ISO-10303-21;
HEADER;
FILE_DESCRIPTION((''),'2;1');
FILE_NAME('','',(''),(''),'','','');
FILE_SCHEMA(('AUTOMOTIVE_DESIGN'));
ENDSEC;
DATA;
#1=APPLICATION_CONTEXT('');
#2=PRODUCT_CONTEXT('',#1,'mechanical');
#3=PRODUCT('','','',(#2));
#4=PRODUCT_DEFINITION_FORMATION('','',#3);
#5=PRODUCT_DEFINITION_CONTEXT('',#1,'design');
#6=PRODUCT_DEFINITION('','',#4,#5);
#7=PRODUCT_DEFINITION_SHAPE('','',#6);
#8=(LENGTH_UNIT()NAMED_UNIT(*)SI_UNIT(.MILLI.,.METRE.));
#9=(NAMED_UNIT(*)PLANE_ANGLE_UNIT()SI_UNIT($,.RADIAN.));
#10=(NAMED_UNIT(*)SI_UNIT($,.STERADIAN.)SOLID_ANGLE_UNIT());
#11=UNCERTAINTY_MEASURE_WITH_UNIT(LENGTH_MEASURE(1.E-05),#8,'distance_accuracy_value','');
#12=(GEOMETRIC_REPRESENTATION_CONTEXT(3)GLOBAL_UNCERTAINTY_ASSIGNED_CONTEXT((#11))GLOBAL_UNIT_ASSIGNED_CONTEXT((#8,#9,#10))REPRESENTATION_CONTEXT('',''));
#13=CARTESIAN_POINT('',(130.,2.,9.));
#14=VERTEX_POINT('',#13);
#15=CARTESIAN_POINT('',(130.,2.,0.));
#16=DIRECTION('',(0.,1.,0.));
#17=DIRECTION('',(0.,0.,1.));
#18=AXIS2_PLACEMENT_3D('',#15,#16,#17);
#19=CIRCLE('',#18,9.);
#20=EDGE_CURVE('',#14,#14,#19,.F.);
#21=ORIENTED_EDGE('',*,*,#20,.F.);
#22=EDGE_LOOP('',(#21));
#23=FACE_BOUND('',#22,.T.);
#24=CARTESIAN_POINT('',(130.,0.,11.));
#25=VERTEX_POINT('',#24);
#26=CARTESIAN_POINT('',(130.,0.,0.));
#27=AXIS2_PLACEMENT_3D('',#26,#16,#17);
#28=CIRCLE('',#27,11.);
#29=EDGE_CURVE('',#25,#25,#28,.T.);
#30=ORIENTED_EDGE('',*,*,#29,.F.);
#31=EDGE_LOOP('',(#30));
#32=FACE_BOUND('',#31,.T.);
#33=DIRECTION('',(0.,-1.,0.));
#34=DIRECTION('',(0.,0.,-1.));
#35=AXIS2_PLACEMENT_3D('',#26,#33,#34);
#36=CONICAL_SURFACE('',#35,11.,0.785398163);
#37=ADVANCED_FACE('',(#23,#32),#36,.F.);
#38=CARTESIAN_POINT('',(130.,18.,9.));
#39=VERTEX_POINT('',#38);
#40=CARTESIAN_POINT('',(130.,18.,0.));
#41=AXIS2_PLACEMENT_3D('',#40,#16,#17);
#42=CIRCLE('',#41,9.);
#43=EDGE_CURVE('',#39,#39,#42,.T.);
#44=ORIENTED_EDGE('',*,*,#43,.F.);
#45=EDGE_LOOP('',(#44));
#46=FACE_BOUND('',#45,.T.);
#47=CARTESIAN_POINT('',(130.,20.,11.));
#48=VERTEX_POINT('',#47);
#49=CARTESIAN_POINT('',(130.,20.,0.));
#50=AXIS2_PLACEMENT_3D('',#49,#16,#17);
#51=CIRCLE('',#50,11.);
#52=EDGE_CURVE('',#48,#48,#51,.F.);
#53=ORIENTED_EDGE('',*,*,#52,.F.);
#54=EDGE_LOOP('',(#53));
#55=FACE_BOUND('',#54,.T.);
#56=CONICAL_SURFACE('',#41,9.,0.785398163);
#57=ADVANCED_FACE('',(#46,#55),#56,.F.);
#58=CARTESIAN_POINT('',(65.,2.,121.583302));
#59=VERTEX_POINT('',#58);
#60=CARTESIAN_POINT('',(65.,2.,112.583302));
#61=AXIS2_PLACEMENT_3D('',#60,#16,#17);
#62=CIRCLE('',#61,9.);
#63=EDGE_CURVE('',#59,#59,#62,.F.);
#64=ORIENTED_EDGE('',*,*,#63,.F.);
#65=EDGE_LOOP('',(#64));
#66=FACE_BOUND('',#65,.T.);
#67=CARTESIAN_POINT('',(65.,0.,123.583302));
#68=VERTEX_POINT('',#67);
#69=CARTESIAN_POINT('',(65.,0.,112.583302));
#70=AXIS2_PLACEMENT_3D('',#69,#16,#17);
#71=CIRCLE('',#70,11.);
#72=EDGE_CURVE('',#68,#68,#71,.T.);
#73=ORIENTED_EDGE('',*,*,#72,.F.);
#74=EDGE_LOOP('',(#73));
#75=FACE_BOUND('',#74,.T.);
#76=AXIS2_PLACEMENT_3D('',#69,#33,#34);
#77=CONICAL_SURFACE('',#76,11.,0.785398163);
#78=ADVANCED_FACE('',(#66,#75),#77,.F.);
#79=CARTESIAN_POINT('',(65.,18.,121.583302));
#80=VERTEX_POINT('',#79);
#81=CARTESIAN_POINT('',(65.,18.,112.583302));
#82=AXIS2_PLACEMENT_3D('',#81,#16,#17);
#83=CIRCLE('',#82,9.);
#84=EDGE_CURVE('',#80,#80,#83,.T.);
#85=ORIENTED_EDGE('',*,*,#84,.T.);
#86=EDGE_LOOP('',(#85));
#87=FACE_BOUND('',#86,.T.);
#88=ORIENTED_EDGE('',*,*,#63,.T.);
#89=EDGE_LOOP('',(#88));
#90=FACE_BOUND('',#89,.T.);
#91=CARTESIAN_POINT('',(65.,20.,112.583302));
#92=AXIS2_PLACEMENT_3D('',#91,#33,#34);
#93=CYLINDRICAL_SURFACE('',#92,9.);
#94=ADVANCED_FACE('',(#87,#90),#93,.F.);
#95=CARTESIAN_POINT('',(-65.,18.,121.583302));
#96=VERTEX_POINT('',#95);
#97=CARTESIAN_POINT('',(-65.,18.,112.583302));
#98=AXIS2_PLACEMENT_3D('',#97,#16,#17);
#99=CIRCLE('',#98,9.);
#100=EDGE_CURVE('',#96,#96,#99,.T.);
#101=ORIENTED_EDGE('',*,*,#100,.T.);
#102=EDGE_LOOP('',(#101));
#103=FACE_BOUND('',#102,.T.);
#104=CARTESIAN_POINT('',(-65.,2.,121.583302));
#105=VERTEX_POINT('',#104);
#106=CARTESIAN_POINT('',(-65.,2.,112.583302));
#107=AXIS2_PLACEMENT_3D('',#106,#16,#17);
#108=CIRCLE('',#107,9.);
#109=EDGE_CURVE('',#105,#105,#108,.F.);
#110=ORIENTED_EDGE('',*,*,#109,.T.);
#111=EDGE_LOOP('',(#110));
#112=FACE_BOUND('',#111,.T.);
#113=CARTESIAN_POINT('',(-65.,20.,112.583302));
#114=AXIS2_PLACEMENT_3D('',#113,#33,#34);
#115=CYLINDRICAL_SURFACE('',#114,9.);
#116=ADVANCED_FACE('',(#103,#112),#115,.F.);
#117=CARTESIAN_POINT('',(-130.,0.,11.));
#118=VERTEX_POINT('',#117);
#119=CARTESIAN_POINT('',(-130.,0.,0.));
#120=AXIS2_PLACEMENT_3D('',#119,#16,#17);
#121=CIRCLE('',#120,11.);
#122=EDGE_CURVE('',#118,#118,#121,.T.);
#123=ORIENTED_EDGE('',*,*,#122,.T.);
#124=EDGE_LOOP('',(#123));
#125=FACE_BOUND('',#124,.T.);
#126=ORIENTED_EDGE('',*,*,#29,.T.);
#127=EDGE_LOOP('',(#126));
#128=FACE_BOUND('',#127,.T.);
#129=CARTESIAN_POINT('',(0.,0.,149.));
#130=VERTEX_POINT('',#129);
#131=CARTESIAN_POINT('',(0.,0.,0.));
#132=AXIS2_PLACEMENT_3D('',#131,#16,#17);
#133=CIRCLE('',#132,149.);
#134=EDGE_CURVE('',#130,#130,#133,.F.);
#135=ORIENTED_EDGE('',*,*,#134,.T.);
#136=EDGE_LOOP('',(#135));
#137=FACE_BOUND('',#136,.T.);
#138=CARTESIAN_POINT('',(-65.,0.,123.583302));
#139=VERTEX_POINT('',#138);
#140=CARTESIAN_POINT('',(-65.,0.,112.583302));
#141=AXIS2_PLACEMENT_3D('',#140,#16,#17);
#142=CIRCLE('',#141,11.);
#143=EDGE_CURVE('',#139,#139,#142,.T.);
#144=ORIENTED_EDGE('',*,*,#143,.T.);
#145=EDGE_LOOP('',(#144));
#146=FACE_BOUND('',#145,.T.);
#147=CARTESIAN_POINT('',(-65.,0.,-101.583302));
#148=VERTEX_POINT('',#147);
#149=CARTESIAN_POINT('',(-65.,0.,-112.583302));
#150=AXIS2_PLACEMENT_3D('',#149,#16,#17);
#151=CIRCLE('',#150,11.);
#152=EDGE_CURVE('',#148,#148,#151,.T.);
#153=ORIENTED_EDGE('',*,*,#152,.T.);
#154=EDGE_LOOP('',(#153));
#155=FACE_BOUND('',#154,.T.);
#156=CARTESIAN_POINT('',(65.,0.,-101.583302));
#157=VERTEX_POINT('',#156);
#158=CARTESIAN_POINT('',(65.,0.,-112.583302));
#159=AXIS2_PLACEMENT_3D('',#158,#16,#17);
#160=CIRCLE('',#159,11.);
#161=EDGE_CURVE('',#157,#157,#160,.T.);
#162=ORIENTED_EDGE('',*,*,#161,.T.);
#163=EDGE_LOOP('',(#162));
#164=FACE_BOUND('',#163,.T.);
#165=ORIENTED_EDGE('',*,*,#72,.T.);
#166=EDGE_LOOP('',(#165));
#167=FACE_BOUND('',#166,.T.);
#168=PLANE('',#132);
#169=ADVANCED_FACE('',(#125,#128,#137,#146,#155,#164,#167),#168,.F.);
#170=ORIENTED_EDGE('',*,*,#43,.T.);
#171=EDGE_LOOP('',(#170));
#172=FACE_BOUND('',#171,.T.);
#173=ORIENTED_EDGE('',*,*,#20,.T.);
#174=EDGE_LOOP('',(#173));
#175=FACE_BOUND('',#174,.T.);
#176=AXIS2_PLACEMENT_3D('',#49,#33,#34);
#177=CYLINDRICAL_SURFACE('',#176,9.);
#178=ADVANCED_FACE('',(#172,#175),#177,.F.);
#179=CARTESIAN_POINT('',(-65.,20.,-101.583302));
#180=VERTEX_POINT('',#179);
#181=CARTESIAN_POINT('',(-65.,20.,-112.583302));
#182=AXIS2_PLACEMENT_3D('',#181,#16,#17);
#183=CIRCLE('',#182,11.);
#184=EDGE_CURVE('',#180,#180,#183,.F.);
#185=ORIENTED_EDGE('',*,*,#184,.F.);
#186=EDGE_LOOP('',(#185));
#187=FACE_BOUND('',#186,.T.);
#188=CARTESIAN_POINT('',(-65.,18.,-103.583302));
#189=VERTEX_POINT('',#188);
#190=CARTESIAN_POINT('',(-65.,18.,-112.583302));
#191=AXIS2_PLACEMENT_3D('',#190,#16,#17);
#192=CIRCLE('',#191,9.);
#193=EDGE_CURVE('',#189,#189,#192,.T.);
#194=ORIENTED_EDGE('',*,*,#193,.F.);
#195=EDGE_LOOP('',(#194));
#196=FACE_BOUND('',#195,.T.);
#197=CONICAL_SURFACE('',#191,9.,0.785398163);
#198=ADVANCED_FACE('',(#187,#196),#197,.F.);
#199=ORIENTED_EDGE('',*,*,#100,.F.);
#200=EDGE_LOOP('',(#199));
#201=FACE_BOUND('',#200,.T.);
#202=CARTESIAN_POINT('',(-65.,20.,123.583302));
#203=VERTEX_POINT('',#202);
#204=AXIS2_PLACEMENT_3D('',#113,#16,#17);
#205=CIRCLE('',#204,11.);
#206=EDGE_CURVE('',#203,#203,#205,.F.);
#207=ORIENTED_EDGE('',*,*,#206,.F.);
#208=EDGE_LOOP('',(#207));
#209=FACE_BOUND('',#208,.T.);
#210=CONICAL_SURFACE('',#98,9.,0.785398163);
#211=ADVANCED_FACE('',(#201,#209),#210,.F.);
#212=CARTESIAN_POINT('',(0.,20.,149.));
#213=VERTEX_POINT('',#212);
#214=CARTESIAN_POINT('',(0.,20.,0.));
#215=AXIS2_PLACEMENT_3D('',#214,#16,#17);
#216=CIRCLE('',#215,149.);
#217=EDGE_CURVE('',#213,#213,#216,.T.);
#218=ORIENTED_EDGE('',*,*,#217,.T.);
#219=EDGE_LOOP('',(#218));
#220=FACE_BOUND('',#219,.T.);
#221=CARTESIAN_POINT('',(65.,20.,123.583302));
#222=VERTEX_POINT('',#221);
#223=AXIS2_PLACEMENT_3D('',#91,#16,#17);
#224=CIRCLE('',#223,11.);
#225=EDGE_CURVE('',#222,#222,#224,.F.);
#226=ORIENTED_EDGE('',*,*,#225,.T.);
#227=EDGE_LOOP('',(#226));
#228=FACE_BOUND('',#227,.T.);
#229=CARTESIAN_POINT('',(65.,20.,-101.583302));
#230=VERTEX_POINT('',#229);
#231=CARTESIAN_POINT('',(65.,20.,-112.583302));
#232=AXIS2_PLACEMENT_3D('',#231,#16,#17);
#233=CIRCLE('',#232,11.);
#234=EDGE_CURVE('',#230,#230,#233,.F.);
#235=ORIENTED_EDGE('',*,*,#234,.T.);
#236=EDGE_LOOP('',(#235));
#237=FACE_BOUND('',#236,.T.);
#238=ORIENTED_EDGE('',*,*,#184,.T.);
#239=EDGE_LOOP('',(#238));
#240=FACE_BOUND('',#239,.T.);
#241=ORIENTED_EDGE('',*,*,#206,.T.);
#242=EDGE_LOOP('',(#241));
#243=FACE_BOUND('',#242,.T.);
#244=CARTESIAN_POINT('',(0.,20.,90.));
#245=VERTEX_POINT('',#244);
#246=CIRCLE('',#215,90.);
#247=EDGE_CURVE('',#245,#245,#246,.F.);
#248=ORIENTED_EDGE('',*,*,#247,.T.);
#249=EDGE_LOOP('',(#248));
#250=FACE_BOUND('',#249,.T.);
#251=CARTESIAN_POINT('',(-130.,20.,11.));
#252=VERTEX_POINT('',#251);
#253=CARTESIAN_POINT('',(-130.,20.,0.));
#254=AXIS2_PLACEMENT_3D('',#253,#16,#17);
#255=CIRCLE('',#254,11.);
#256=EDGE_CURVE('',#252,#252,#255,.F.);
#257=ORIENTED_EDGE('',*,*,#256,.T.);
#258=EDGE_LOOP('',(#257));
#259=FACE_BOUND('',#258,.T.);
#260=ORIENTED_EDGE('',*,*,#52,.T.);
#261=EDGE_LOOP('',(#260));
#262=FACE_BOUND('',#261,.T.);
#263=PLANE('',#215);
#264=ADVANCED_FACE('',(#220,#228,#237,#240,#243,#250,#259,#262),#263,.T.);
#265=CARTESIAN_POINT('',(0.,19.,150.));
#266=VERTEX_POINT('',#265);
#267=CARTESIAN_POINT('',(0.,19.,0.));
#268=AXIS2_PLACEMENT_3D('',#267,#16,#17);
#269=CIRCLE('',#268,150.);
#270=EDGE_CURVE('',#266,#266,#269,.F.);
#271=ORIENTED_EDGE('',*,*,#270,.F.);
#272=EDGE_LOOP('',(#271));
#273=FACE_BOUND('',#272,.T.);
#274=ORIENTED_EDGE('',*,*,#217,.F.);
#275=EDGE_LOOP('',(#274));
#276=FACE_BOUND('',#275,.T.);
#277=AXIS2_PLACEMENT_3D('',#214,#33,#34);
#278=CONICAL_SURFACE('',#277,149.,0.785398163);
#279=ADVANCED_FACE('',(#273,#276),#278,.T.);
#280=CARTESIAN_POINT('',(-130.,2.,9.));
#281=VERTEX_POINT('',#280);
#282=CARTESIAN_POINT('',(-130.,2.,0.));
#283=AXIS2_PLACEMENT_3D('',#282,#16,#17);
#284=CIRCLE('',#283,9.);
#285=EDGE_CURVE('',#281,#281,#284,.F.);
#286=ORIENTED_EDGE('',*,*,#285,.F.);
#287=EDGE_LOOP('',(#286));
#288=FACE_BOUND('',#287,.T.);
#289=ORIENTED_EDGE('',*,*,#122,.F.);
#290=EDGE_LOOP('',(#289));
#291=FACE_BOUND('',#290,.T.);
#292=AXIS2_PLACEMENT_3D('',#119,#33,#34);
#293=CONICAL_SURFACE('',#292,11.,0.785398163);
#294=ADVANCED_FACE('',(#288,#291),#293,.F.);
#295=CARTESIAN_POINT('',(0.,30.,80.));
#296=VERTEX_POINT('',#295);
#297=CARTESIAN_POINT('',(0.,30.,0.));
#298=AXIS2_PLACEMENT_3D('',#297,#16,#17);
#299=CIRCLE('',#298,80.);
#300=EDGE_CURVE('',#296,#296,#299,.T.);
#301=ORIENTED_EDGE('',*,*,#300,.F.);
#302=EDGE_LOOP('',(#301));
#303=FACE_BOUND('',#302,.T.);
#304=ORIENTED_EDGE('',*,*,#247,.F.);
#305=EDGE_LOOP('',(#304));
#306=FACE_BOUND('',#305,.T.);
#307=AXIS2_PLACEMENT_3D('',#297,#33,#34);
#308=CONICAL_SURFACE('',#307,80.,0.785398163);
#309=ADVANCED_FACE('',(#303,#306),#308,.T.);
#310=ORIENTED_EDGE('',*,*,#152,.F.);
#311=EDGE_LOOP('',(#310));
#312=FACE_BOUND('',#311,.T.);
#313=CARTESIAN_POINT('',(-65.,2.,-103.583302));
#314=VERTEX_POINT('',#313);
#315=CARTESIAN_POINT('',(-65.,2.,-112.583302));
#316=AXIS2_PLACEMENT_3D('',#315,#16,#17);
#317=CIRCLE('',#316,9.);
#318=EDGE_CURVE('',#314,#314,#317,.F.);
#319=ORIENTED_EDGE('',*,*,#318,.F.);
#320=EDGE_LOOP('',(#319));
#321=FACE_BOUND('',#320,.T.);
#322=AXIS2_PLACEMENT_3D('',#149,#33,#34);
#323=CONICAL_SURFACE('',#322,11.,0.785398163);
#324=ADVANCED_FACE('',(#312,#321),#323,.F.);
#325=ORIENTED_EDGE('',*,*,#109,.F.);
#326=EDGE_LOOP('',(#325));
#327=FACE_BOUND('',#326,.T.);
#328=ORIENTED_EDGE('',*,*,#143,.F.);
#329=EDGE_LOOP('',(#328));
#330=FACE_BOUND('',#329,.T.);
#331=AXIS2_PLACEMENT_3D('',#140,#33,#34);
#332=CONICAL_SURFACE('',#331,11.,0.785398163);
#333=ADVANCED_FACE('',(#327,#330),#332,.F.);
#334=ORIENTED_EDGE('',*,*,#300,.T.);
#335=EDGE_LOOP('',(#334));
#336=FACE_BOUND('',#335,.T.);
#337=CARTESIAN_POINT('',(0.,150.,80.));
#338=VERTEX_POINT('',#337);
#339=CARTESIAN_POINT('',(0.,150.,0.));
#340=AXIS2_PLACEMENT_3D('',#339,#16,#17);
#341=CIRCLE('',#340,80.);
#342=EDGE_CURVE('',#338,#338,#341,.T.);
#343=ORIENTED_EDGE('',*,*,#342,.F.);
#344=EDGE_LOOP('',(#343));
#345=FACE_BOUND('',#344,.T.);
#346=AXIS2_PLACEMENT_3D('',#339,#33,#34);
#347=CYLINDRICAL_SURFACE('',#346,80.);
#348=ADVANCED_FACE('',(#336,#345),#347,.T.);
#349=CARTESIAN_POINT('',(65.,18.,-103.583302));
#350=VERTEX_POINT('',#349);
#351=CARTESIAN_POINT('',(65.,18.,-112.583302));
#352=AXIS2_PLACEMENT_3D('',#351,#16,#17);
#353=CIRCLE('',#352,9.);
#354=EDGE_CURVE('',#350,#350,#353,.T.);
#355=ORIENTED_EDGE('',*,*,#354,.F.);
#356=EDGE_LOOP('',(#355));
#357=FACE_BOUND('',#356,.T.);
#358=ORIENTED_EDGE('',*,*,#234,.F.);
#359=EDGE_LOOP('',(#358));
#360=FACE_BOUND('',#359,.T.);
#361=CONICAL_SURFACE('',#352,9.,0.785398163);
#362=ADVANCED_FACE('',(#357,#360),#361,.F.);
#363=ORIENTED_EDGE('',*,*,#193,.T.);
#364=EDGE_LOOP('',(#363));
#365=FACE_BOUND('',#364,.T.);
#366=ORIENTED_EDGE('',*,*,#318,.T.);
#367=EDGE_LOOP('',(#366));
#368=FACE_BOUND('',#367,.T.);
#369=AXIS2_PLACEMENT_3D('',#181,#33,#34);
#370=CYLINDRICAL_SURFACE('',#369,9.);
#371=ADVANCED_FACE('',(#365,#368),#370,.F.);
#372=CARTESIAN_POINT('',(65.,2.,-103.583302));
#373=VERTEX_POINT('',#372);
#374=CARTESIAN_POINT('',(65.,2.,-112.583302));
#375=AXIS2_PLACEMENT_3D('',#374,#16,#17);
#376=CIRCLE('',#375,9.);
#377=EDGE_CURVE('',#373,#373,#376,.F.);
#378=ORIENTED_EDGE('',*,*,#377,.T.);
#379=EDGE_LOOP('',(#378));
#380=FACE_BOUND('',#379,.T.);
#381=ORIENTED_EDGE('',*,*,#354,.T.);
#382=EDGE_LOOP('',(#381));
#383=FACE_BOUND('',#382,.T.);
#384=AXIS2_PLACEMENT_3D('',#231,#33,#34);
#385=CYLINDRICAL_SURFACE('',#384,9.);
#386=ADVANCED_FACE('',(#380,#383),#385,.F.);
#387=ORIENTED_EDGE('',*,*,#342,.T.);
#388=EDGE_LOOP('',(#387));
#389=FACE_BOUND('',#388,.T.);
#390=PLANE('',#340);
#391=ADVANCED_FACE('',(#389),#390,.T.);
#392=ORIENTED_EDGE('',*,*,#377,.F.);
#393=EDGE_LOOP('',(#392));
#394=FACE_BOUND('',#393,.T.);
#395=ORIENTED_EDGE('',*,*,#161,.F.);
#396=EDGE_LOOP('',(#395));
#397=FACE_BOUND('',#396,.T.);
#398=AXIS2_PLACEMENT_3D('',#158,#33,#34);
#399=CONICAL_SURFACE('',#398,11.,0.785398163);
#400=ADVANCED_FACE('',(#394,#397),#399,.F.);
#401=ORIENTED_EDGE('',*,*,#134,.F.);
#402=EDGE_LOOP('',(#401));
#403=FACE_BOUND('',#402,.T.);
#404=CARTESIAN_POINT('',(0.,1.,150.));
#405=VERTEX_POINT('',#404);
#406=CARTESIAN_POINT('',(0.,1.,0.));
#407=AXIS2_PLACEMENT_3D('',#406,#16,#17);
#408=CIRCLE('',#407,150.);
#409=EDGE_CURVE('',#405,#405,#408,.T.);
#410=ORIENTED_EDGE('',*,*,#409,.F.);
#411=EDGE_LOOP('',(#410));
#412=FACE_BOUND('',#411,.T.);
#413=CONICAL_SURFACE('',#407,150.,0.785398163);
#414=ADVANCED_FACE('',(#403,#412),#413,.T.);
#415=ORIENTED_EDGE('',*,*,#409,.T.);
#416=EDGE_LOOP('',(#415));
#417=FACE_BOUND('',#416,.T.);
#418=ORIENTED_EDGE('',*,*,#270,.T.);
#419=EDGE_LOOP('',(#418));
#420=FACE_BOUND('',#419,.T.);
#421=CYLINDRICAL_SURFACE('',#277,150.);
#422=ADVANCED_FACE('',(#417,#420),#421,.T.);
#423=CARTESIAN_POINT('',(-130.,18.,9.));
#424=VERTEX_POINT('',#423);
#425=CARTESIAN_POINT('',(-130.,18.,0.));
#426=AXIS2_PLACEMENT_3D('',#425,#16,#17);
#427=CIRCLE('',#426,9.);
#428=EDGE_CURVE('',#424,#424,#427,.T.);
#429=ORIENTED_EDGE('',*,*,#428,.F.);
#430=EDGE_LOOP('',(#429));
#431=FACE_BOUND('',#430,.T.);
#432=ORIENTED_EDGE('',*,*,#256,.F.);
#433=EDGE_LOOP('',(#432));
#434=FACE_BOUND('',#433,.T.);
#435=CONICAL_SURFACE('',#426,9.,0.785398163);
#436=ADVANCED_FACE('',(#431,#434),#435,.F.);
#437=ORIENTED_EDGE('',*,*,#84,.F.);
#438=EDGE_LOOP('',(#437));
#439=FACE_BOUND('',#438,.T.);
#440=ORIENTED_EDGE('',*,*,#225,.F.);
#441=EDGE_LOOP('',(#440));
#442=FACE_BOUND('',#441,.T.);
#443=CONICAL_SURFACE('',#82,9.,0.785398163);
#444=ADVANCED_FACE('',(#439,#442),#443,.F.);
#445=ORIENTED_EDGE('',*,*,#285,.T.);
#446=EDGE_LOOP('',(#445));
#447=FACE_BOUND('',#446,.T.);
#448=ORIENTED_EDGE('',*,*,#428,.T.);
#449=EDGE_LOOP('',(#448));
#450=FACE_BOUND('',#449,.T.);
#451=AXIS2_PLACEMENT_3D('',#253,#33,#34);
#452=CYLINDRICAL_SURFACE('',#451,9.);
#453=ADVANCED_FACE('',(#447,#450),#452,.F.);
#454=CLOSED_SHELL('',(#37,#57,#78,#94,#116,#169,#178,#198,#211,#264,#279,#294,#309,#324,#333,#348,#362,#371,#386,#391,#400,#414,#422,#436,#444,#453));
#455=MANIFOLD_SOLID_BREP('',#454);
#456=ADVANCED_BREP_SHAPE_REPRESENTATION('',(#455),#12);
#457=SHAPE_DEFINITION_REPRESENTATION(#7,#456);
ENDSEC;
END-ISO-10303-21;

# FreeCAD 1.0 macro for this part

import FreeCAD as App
import Part
import Sketcher


def edges_at(feature, points):
    """Names of the edges that pass closest to the given points."""
    edges = feature.Shape.Edges
    near = lambda p: min(range(len(edges)), key=lambda i: edges[i].distToShape(Part.Vertex(*p))[0])
    return sorted({f"Edge{near(p) + 1}" for p in points})

doc = App.newDocument("Part")
body = doc.addObject("PartDesign::Body", "Body")

# Sketch on XZ plane
sketch1 = body.newObject("Sketcher::SketchObject", "Sketch")
sketch1.AttachmentSupport = (doc.getObject("XZ_Plane"), [""])
sketch1.MapMode = "FlatFace"
sketch1.addGeometry(Part.Circle(App.Vector(0, 0, 0), App.Vector(0, 0, 1), 150), False)
sketch1.addGeometry(Part.Circle(App.Vector(-65, -112.583302, 0), App.Vector(0, 0, 1), 9), False)
sketch1.addGeometry(Part.Circle(App.Vector(-130, 0, 0), App.Vector(0, 0, 1), 9), False)
sketch1.addGeometry(Part.Circle(App.Vector(-65, 112.583302, 0), App.Vector(0, 0, 1), 9), False)
sketch1.addGeometry(Part.Circle(App.Vector(65, -112.583302, 0), App.Vector(0, 0, 1), 9), False)
sketch1.addGeometry(Part.Circle(App.Vector(130, 0, 0), App.Vector(0, 0, 1), 9), False)
sketch1.addGeometry(Part.Circle(App.Vector(65, 112.583302, 0), App.Vector(0, 0, 1), 9), False)
sketch1.addConstraint(Sketcher.Constraint("Coincident", 0, 3, -1, 1))
sketch1.addConstraint(Sketcher.Constraint("Equal", 1, 2))
sketch1.addConstraint(Sketcher.Constraint("Equal", 2, 3))
sketch1.addConstraint(Sketcher.Constraint("Equal", 3, 4))
sketch1.addConstraint(Sketcher.Constraint("Equal", 4, 5))
sketch1.addConstraint(Sketcher.Constraint("Equal", 5, 6))
sketch1.addConstraint(Sketcher.Constraint("Symmetric", 3, 3, 4, 3, -1, 1))
sketch1.addConstraint(Sketcher.Constraint("Symmetric", 2, 3, 5, 3, -1, 1))
sketch1.addConstraint(Sketcher.Constraint("Symmetric", 1, 3, 6, 3, -1, 1))
sketch1.addConstraint(Sketcher.Constraint("Symmetric", 1, 3, 4, 3, -2))
sketch1.addConstraint(Sketcher.Constraint("PointOnObject", 2, 3, -1))
sketch1.addConstraint(Sketcher.Constraint("Diameter", 0, 300.0))
sketch1.addConstraint(Sketcher.Constraint("Diameter", 1, 18.0))
sketch1.addConstraint(Sketcher.Constraint("DistanceX", 1, 3, -1, 1, 65.0))
sketch1.addConstraint(Sketcher.Constraint("DistanceX", 2, 3, -1, 1, 130.0))
sketch1.addConstraint(Sketcher.Constraint("DistanceY", 1, 3, -1, 1, 112.583302))
pad1 = body.newObject("PartDesign::Pad", "Pad")
pad1.Profile = sketch1
pad1.Length = 20
pad1.Reversed = True

# Sketch on XZ plane
sketch2 = body.newObject("Sketcher::SketchObject", "Sketch001")
sketch2.AttachmentSupport = (doc.getObject("XZ_Plane"), [""])
sketch2.MapMode = "FlatFace"
sketch2.AttachmentOffset = App.Placement(App.Vector(0, 0, -20), App.Rotation())
sketch2.addGeometry(Part.Circle(App.Vector(0, 0, 0), App.Vector(0, 0, 1), 80), False)
sketch2.addConstraint(Sketcher.Constraint("Coincident", 0, 3, -1, 1))
sketch2.addConstraint(Sketcher.Constraint("Diameter", 0, 160.0))
pad2 = body.newObject("PartDesign::Pad", "Pad001")
pad2.Profile = sketch2
pad2.Length = 130
pad2.Reversed = True
doc.recompute()

chamfer = body.newObject("PartDesign::Chamfer", "Chamfer")
chamfer.Base = (pad2, edges_at(pad2, [(0, 0, -150), (0, 20, -150)]))
chamfer.Size = 1
doc.recompute()

chamfer2 = body.newObject("PartDesign::Chamfer", "Chamfer001")
chamfer2.Base = (chamfer, edges_at(chamfer, [(0, 20, -80)]))
chamfer2.Size = 10
doc.recompute()

chamfer3 = body.newObject("PartDesign::Chamfer", "Chamfer002")
chamfer3.Base = (chamfer2, edges_at(chamfer2, [
    (-65, 0, 103.583),
    (-65, 20, 103.583),
    (-130, 0, -9),
    (-130, 20, -9),
    (-65, 0, -121.583),
    (-65, 20, -121.583),
    (65, 0, -121.583),
    (65, 20, -121.583),
    (130, 0, -9),
    (130, 20, -9),
    (65, 0, 103.583),
    (65, 20, 103.583),
]))
chamfer3.Size = 2

doc.recompute()
